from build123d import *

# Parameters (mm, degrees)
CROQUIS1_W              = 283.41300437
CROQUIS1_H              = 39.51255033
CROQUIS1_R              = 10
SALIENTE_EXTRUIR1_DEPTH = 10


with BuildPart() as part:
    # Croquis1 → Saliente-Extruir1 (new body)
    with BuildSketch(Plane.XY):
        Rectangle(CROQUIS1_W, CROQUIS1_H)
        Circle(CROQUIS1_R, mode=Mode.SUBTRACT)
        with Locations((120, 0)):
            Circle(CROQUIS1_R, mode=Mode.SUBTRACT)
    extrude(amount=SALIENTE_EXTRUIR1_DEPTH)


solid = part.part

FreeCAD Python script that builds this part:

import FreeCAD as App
import Part
import Sketcher

V = App.Vector

doc = App.newDocument("Part")
body = doc.addObject("PartDesign::Body", "Body")

# Sketch on XY plane
sketch1 = body.newObject("Sketcher::SketchObject", "Sketch")
sketch1.AttachmentSupport = (doc.getObject("XY_Plane"), [""])
sketch1.MapMode = "FlatFace"
sketch1.addGeometry([
    Part.LineSegment(V(-142, 20, 0), V(-142, -20, 0)),  # 0
    Part.LineSegment(V(-142, -20, 0), V(142, -20, 0)),  # 1
    Part.LineSegment(V(142, -20, 0), V(142, 20, 0)),  # 2
    Part.LineSegment(V(142, 20, 0), V(-142, 20, 0)),  # 3
    Part.Circle(V(0, 0, 0), V(0, 0, 1), 10),  # 4
    Part.Circle(V(120, 0, 0), V(0, 0, 1), 10),  # 5
], False)
sketch1.addConstraint([
    Sketcher.Constraint("Coincident", 0, 2, 1, 1),
    Sketcher.Constraint("Coincident", 1, 2, 2, 1),
    Sketcher.Constraint("Coincident", 2, 2, 3, 1),
    Sketcher.Constraint("Coincident", 3, 2, 0, 1),
    Sketcher.Constraint("Vertical", 0),
    Sketcher.Constraint("Horizontal", 1),
    Sketcher.Constraint("Vertical", 2),
    Sketcher.Constraint("Horizontal", 3),
    Sketcher.Constraint("Coincident", 4, 3, -1, 1),
    Sketcher.Constraint("Equal", 4, 5),
    Sketcher.Constraint("Symmetric", 0, 2, 2, 2, -1, 1),
    Sketcher.Constraint("PointOnObject", 5, 3, -1),
    Sketcher.Constraint("Diameter", 4, 20.0),
    Sketcher.Constraint("DistanceX", -1, 1, 5, 3, 120.0),
    Sketcher.Constraint("DistanceY", 0, 2, 0, 1, 39.51255),
    Sketcher.Constraint("DistanceX", 1, 1, 1, 2, 283.413004),
])
pad1 = body.newObject("PartDesign::Pad", "Pad")
pad1.Profile = sketch1
pad1.Length = 10

doc.recompute()
